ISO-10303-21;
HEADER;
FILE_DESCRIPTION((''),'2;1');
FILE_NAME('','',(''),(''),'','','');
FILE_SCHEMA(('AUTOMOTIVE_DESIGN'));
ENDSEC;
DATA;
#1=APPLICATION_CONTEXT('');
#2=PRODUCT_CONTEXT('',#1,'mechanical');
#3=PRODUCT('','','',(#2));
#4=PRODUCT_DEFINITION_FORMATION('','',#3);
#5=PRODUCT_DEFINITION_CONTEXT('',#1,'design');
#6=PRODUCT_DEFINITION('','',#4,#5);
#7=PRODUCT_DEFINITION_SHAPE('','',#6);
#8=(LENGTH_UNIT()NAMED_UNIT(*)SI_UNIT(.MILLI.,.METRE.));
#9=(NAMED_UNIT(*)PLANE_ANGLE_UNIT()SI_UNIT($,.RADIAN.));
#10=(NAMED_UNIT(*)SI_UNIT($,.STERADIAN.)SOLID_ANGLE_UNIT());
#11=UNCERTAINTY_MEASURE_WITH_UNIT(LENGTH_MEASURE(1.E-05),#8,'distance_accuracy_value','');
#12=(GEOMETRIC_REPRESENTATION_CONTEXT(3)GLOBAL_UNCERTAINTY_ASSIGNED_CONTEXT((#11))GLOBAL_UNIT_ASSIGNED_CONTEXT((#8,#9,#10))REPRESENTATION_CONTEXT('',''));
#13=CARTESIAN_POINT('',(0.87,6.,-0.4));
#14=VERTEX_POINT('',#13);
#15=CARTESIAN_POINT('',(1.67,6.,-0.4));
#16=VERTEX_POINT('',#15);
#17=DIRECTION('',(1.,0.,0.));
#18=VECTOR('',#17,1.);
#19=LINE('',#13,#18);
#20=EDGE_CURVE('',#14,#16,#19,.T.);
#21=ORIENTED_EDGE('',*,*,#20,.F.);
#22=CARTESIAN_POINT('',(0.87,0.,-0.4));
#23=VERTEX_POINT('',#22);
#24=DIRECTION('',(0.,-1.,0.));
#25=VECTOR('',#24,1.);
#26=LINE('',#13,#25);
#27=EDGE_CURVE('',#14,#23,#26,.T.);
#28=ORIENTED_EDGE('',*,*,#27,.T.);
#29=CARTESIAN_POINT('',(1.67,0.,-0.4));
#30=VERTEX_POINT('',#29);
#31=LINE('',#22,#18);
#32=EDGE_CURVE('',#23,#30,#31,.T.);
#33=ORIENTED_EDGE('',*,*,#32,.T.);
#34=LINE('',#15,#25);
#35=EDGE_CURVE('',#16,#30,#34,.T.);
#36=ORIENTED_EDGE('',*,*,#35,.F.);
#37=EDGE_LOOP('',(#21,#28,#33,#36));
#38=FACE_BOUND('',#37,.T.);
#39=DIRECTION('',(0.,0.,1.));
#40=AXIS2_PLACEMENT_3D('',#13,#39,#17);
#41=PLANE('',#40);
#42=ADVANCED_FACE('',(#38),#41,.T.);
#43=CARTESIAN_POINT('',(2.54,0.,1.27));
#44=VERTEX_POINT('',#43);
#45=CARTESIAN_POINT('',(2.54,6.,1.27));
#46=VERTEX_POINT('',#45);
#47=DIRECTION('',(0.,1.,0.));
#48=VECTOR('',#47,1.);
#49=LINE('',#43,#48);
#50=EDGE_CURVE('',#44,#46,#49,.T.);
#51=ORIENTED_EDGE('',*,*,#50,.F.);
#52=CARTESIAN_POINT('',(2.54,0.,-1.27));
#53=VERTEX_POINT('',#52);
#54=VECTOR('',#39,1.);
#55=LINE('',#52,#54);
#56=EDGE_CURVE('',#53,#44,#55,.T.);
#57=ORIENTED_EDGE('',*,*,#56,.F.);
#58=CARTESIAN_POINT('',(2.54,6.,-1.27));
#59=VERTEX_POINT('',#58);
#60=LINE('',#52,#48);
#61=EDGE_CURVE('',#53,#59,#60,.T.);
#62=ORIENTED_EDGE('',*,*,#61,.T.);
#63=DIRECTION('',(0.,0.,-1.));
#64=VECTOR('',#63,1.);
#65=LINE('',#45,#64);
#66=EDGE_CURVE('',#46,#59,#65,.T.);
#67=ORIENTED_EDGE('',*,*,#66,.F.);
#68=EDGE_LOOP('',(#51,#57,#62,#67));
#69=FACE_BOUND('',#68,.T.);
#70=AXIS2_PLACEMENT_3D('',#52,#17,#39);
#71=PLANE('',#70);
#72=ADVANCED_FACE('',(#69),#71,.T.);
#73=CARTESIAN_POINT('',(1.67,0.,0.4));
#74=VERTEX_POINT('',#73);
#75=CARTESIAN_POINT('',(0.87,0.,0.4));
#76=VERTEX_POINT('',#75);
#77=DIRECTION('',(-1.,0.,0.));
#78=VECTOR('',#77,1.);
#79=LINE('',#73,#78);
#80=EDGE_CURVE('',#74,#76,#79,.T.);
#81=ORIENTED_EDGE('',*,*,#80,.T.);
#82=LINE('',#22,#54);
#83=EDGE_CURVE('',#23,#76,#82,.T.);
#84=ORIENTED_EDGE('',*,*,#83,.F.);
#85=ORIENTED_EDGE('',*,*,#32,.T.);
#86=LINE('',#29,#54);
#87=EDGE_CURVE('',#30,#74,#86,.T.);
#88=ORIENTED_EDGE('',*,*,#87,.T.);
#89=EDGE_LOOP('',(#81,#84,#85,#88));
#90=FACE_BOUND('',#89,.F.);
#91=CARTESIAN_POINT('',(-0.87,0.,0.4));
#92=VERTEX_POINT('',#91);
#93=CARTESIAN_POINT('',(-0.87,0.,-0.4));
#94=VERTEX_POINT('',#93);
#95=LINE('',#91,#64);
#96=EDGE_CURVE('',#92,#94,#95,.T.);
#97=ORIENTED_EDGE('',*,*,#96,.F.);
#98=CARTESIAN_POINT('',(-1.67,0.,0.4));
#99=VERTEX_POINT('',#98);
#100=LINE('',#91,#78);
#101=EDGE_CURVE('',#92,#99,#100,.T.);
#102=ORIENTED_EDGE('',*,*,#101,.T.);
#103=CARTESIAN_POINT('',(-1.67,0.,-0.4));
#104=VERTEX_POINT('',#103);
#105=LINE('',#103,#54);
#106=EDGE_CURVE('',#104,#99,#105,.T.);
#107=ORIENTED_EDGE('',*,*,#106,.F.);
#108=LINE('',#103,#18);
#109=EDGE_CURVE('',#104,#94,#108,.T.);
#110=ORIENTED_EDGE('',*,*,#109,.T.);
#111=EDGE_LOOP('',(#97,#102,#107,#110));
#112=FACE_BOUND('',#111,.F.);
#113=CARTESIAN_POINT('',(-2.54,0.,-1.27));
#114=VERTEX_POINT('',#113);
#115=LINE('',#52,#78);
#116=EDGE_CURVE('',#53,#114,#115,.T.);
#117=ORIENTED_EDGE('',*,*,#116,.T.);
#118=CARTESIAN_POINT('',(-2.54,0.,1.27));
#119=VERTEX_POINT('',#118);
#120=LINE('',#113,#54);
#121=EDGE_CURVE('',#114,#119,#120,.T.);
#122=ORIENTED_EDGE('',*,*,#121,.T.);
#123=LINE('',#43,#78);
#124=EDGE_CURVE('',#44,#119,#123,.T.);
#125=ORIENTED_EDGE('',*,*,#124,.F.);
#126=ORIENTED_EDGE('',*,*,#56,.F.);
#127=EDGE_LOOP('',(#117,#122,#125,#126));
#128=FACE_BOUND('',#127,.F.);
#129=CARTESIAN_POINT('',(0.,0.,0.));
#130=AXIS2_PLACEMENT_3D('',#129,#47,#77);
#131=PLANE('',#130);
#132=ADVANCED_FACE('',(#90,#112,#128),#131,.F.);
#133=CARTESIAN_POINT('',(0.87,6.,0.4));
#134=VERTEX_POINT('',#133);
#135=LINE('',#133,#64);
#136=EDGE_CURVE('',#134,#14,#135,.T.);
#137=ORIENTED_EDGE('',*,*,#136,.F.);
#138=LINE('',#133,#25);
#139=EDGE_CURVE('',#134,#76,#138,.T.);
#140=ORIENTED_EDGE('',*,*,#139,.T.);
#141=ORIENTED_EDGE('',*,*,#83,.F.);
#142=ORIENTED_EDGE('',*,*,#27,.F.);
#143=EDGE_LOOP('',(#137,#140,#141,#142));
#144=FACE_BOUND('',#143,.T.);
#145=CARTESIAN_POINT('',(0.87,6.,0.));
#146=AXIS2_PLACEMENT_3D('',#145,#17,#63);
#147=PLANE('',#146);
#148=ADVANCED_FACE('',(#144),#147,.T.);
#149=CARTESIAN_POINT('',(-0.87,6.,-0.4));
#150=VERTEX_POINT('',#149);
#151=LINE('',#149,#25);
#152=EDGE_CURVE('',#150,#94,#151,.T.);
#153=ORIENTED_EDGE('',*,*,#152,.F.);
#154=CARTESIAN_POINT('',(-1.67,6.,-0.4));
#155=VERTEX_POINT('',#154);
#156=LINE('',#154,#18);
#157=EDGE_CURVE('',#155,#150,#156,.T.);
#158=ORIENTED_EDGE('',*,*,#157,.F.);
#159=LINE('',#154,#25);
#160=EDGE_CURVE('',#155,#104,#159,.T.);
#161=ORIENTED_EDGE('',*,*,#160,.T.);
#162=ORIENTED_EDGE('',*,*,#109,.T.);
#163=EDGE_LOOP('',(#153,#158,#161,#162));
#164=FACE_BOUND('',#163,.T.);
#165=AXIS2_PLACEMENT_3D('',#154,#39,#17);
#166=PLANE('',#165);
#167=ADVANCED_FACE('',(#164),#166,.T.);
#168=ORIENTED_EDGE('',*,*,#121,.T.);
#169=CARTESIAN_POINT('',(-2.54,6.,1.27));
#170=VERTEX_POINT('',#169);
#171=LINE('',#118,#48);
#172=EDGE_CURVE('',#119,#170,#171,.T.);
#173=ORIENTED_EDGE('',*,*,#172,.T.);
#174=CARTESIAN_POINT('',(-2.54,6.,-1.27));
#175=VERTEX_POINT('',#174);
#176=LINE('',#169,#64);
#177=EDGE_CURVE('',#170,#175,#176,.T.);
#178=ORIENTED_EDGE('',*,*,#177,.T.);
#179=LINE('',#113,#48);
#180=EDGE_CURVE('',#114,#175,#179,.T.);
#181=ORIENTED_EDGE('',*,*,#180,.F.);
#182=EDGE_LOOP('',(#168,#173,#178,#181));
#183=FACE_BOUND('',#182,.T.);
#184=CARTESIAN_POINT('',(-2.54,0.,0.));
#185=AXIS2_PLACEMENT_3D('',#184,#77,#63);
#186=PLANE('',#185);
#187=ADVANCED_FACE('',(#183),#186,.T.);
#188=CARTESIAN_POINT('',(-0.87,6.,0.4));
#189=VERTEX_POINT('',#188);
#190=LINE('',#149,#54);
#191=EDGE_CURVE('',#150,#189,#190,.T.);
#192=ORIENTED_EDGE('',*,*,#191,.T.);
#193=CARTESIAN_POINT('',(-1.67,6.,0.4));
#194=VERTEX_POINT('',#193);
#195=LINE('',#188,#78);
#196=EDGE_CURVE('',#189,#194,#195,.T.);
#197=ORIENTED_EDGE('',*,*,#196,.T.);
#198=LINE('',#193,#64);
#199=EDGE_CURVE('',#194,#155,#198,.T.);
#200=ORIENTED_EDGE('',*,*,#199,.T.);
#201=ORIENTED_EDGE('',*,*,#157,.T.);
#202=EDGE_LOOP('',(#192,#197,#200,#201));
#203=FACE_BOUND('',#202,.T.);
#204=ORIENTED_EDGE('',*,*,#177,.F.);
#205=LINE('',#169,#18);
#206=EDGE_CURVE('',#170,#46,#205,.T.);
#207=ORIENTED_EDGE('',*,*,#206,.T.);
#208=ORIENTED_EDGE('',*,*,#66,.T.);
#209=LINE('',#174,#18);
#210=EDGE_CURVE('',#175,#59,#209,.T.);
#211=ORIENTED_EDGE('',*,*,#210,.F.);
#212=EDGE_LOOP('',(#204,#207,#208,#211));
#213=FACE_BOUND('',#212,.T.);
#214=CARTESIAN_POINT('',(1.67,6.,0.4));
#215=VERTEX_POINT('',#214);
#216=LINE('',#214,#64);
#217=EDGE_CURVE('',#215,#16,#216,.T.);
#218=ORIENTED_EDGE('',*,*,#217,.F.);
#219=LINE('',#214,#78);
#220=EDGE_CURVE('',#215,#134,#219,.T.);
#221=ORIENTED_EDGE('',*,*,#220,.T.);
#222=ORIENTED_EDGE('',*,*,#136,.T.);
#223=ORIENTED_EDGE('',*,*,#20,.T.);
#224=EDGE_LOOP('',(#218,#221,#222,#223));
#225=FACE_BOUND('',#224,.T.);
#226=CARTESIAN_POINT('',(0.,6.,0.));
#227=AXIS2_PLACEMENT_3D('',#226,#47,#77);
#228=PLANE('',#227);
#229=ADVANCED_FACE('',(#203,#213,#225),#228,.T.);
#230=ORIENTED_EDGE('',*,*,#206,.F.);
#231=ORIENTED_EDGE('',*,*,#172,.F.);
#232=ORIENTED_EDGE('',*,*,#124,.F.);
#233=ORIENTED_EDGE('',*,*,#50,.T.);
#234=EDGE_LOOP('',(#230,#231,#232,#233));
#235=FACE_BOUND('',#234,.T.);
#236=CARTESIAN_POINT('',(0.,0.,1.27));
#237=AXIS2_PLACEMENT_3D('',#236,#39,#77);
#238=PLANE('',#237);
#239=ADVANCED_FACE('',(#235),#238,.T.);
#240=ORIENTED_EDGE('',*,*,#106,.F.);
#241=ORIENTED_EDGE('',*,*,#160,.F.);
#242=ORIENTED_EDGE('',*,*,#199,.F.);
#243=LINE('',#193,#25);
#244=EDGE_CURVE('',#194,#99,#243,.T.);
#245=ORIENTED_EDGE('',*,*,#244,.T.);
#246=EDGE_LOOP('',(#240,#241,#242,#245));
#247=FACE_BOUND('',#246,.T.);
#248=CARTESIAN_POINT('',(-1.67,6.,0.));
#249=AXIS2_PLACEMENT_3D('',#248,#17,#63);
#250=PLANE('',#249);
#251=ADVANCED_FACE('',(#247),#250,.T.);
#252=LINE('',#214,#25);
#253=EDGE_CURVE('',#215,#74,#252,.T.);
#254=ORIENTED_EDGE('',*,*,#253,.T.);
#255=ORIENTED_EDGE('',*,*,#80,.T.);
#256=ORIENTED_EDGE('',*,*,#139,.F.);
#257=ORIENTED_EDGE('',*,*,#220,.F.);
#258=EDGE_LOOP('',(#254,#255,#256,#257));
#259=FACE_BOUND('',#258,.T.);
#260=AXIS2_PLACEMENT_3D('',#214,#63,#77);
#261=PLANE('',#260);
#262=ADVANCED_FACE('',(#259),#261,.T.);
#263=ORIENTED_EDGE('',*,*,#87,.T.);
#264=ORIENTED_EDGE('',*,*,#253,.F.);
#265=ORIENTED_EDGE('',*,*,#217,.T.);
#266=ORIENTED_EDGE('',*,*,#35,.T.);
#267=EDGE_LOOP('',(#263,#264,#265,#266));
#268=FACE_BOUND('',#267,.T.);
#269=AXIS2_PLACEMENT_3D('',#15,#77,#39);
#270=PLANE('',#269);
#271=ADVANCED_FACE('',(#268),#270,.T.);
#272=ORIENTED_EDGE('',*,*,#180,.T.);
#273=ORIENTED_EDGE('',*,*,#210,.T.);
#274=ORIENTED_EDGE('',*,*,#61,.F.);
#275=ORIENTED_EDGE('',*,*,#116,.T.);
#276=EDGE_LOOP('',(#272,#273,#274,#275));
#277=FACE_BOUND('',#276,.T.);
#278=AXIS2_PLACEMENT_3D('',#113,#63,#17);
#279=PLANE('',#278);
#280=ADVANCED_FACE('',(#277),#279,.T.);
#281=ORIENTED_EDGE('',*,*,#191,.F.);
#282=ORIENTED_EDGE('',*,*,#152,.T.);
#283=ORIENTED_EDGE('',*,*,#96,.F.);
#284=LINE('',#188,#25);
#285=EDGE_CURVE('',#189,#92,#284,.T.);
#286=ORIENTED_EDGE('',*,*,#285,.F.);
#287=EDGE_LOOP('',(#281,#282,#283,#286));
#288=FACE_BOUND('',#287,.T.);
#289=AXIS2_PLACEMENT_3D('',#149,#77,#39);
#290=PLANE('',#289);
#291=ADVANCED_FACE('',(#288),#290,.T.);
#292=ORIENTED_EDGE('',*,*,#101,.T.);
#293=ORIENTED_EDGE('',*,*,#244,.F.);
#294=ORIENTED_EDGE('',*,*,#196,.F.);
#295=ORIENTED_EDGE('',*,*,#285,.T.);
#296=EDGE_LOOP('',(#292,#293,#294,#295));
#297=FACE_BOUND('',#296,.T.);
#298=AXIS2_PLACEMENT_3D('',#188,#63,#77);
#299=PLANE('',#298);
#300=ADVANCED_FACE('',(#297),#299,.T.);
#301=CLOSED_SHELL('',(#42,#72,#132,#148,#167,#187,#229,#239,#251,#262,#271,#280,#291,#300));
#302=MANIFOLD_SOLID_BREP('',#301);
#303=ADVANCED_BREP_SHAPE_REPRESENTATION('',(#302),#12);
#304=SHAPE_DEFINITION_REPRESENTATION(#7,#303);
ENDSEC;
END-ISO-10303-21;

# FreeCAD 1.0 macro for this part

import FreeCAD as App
import Part
import Sketcher
from FreeCAD import Vector
Q = App.Units.Quantity

doc = App.newDocument("Part")
body = doc.addObject("PartDesign::Body", "Body")

# Sketch on XZ plane
sketch1 = body.newObject("Sketcher::SketchObject", "Sketch")
sketch1.AttachmentSupport = (doc.getObject("XZ_Plane"), [""])
sketch1.MapMode = "FlatFace"
sketch1.addGeometry(Part.LineSegment(Vector(-2.5, -1.3, 0), Vector(-2.5, 1.3, 0)), False)
sketch1.addGeometry(Part.LineSegment(Vector(-2.5, 1.3, 0), Vector(2.5, 1.3, 0)), False)
sketch1.addGeometry(Part.LineSegment(Vector(2.5, 1.3, 0), Vector(2.5, -1.3, 0)), False)
sketch1.addGeometry(Part.LineSegment(Vector(2.5, -1.3, 0), Vector(-2.5, -1.3, 0)), False)
sketch1.addConstraint(Sketcher.Constraint("Coincident", 0, 2, 1, 1))
sketch1.addConstraint(Sketcher.Constraint("Coincident", 1, 2, 2, 1))
sketch1.addConstraint(Sketcher.Constraint("Coincident", 2, 2, 3, 1))
sketch1.addConstraint(Sketcher.Constraint("Coincident", 3, 2, 0, 1))
sketch1.addConstraint(Sketcher.Constraint("Vertical", 0))
sketch1.addConstraint(Sketcher.Constraint("Horizontal", 1))
sketch1.addConstraint(Sketcher.Constraint("Vertical", 2))
sketch1.addConstraint(Sketcher.Constraint("Horizontal", 3))
sketch1.addConstraint(Sketcher.Constraint("Symmetric", 0, 2, 2, 2, -1, 1))
sketch1.addConstraint(Sketcher.Constraint("DistanceX", 1, 1, 1, 2, Q("0.2 in")))
sketch1.addConstraint(Sketcher.Constraint("DistanceY", 0, 1, 0, 2, Q("0.1 in")))
pad1 = body.newObject("PartDesign::Pad", "Pad")
pad1.Profile = sketch1
pad1.Length = 6
pad1.Reversed = True

# Sketch on XZ plane
sketch2 = body.newObject("Sketcher::SketchObject", "Sketch001")
sketch2.AttachmentSupport = (doc.getObject("XZ_Plane"), [""])
sketch2.MapMode = "FlatFace"
sketch2.AttachmentOffset = App.Placement(Vector(0, 0, -6), App.Rotation())
sketch2.addGeometry(Part.LineSegment(Vector(0.9, -0.4, 0), Vector(0.9, 0.4, 0)), False)
sketch2.addGeometry(Part.LineSegment(Vector(0.9, 0.4, 0), Vector(1.7, 0.4, 0)), False)
sketch2.addGeometry(Part.LineSegment(Vector(1.7, 0.4, 0), Vector(1.7, -0.4, 0)), False)
sketch2.addGeometry(Part.LineSegment(Vector(1.7, -0.4, 0), Vector(0.9, -0.4, 0)), False)
sketch2.addGeometry(Part.LineSegment(Vector(-0.9, -0.4, 0), Vector(-1.7, -0.4, 0)), False)
sketch2.addGeometry(Part.LineSegment(Vector(-1.7, -0.4, 0), Vector(-1.7, 0.4, 0)), False)
sketch2.addGeometry(Part.LineSegment(Vector(-1.7, 0.4, 0), Vector(-0.9, 0.4, 0)), False)
sketch2.addGeometry(Part.LineSegment(Vector(-0.9, 0.4, 0), Vector(-0.9, -0.4, 0)), False)
sketch2.addConstraint(Sketcher.Constraint("Coincident", 0, 2, 1, 1))
sketch2.addConstraint(Sketcher.Constraint("Coincident", 1, 2, 2, 1))
sketch2.addConstraint(Sketcher.Constraint("Coincident", 2, 2, 3, 1))
sketch2.addConstraint(Sketcher.Constraint("Coincident", 3, 2, 0, 1))
sketch2.addConstraint(Sketcher.Constraint("Coincident", 4, 2, 5, 1))
sketch2.addConstraint(Sketcher.Constraint("Coincident", 5, 2, 6, 1))
sketch2.addConstraint(Sketcher.Constraint("Coincident", 6, 2, 7, 1))
sketch2.addConstraint(Sketcher.Constraint("Coincident", 7, 2, 4, 1))
sketch2.addConstraint(Sketcher.Constraint("Vertical", 0))
sketch2.addConstraint(Sketcher.Constraint("Horizontal", 1))
sketch2.addConstraint(Sketcher.Constraint("Vertical", 2))
sketch2.addConstraint(Sketcher.Constraint("Horizontal", 3))
sketch2.addConstraint(Sketcher.Constraint("Horizontal", 4))
sketch2.addConstraint(Sketcher.Constraint("Vertical", 5))
sketch2.addConstraint(Sketcher.Constraint("Horizontal", 6))
sketch2.addConstraint(Sketcher.Constraint("Vertical", 7))
sketch2.addConstraint(Sketcher.Constraint("Symmetric", 1, 2, 4, 2, -1, 1))
sketch2.addConstraint(Sketcher.Constraint("Symmetric", 3, 2, 6, 2, -1, 1))
sketch2.addConstraint(Sketcher.Constraint("Horizontal", 3, 2, 4, 2))
sketch2.addConstraint(Sketcher.Constraint("Equal", 6, 0))
sketch2.addConstraint(Sketcher.Constraint("DistanceX", 4, 2, 3, 2, Q("0.1 in")))
sketch2.addConstraint(Sketcher.Constraint("DistanceX", 1, 1, 1, 2, Q("0.0315 in")))
pocket1 = body.newObject("PartDesign::Pocket", "Pocket")
pocket1.Profile = sketch2
pocket1.Length = 6
pocket1.Reversed = True

doc.recompute()
